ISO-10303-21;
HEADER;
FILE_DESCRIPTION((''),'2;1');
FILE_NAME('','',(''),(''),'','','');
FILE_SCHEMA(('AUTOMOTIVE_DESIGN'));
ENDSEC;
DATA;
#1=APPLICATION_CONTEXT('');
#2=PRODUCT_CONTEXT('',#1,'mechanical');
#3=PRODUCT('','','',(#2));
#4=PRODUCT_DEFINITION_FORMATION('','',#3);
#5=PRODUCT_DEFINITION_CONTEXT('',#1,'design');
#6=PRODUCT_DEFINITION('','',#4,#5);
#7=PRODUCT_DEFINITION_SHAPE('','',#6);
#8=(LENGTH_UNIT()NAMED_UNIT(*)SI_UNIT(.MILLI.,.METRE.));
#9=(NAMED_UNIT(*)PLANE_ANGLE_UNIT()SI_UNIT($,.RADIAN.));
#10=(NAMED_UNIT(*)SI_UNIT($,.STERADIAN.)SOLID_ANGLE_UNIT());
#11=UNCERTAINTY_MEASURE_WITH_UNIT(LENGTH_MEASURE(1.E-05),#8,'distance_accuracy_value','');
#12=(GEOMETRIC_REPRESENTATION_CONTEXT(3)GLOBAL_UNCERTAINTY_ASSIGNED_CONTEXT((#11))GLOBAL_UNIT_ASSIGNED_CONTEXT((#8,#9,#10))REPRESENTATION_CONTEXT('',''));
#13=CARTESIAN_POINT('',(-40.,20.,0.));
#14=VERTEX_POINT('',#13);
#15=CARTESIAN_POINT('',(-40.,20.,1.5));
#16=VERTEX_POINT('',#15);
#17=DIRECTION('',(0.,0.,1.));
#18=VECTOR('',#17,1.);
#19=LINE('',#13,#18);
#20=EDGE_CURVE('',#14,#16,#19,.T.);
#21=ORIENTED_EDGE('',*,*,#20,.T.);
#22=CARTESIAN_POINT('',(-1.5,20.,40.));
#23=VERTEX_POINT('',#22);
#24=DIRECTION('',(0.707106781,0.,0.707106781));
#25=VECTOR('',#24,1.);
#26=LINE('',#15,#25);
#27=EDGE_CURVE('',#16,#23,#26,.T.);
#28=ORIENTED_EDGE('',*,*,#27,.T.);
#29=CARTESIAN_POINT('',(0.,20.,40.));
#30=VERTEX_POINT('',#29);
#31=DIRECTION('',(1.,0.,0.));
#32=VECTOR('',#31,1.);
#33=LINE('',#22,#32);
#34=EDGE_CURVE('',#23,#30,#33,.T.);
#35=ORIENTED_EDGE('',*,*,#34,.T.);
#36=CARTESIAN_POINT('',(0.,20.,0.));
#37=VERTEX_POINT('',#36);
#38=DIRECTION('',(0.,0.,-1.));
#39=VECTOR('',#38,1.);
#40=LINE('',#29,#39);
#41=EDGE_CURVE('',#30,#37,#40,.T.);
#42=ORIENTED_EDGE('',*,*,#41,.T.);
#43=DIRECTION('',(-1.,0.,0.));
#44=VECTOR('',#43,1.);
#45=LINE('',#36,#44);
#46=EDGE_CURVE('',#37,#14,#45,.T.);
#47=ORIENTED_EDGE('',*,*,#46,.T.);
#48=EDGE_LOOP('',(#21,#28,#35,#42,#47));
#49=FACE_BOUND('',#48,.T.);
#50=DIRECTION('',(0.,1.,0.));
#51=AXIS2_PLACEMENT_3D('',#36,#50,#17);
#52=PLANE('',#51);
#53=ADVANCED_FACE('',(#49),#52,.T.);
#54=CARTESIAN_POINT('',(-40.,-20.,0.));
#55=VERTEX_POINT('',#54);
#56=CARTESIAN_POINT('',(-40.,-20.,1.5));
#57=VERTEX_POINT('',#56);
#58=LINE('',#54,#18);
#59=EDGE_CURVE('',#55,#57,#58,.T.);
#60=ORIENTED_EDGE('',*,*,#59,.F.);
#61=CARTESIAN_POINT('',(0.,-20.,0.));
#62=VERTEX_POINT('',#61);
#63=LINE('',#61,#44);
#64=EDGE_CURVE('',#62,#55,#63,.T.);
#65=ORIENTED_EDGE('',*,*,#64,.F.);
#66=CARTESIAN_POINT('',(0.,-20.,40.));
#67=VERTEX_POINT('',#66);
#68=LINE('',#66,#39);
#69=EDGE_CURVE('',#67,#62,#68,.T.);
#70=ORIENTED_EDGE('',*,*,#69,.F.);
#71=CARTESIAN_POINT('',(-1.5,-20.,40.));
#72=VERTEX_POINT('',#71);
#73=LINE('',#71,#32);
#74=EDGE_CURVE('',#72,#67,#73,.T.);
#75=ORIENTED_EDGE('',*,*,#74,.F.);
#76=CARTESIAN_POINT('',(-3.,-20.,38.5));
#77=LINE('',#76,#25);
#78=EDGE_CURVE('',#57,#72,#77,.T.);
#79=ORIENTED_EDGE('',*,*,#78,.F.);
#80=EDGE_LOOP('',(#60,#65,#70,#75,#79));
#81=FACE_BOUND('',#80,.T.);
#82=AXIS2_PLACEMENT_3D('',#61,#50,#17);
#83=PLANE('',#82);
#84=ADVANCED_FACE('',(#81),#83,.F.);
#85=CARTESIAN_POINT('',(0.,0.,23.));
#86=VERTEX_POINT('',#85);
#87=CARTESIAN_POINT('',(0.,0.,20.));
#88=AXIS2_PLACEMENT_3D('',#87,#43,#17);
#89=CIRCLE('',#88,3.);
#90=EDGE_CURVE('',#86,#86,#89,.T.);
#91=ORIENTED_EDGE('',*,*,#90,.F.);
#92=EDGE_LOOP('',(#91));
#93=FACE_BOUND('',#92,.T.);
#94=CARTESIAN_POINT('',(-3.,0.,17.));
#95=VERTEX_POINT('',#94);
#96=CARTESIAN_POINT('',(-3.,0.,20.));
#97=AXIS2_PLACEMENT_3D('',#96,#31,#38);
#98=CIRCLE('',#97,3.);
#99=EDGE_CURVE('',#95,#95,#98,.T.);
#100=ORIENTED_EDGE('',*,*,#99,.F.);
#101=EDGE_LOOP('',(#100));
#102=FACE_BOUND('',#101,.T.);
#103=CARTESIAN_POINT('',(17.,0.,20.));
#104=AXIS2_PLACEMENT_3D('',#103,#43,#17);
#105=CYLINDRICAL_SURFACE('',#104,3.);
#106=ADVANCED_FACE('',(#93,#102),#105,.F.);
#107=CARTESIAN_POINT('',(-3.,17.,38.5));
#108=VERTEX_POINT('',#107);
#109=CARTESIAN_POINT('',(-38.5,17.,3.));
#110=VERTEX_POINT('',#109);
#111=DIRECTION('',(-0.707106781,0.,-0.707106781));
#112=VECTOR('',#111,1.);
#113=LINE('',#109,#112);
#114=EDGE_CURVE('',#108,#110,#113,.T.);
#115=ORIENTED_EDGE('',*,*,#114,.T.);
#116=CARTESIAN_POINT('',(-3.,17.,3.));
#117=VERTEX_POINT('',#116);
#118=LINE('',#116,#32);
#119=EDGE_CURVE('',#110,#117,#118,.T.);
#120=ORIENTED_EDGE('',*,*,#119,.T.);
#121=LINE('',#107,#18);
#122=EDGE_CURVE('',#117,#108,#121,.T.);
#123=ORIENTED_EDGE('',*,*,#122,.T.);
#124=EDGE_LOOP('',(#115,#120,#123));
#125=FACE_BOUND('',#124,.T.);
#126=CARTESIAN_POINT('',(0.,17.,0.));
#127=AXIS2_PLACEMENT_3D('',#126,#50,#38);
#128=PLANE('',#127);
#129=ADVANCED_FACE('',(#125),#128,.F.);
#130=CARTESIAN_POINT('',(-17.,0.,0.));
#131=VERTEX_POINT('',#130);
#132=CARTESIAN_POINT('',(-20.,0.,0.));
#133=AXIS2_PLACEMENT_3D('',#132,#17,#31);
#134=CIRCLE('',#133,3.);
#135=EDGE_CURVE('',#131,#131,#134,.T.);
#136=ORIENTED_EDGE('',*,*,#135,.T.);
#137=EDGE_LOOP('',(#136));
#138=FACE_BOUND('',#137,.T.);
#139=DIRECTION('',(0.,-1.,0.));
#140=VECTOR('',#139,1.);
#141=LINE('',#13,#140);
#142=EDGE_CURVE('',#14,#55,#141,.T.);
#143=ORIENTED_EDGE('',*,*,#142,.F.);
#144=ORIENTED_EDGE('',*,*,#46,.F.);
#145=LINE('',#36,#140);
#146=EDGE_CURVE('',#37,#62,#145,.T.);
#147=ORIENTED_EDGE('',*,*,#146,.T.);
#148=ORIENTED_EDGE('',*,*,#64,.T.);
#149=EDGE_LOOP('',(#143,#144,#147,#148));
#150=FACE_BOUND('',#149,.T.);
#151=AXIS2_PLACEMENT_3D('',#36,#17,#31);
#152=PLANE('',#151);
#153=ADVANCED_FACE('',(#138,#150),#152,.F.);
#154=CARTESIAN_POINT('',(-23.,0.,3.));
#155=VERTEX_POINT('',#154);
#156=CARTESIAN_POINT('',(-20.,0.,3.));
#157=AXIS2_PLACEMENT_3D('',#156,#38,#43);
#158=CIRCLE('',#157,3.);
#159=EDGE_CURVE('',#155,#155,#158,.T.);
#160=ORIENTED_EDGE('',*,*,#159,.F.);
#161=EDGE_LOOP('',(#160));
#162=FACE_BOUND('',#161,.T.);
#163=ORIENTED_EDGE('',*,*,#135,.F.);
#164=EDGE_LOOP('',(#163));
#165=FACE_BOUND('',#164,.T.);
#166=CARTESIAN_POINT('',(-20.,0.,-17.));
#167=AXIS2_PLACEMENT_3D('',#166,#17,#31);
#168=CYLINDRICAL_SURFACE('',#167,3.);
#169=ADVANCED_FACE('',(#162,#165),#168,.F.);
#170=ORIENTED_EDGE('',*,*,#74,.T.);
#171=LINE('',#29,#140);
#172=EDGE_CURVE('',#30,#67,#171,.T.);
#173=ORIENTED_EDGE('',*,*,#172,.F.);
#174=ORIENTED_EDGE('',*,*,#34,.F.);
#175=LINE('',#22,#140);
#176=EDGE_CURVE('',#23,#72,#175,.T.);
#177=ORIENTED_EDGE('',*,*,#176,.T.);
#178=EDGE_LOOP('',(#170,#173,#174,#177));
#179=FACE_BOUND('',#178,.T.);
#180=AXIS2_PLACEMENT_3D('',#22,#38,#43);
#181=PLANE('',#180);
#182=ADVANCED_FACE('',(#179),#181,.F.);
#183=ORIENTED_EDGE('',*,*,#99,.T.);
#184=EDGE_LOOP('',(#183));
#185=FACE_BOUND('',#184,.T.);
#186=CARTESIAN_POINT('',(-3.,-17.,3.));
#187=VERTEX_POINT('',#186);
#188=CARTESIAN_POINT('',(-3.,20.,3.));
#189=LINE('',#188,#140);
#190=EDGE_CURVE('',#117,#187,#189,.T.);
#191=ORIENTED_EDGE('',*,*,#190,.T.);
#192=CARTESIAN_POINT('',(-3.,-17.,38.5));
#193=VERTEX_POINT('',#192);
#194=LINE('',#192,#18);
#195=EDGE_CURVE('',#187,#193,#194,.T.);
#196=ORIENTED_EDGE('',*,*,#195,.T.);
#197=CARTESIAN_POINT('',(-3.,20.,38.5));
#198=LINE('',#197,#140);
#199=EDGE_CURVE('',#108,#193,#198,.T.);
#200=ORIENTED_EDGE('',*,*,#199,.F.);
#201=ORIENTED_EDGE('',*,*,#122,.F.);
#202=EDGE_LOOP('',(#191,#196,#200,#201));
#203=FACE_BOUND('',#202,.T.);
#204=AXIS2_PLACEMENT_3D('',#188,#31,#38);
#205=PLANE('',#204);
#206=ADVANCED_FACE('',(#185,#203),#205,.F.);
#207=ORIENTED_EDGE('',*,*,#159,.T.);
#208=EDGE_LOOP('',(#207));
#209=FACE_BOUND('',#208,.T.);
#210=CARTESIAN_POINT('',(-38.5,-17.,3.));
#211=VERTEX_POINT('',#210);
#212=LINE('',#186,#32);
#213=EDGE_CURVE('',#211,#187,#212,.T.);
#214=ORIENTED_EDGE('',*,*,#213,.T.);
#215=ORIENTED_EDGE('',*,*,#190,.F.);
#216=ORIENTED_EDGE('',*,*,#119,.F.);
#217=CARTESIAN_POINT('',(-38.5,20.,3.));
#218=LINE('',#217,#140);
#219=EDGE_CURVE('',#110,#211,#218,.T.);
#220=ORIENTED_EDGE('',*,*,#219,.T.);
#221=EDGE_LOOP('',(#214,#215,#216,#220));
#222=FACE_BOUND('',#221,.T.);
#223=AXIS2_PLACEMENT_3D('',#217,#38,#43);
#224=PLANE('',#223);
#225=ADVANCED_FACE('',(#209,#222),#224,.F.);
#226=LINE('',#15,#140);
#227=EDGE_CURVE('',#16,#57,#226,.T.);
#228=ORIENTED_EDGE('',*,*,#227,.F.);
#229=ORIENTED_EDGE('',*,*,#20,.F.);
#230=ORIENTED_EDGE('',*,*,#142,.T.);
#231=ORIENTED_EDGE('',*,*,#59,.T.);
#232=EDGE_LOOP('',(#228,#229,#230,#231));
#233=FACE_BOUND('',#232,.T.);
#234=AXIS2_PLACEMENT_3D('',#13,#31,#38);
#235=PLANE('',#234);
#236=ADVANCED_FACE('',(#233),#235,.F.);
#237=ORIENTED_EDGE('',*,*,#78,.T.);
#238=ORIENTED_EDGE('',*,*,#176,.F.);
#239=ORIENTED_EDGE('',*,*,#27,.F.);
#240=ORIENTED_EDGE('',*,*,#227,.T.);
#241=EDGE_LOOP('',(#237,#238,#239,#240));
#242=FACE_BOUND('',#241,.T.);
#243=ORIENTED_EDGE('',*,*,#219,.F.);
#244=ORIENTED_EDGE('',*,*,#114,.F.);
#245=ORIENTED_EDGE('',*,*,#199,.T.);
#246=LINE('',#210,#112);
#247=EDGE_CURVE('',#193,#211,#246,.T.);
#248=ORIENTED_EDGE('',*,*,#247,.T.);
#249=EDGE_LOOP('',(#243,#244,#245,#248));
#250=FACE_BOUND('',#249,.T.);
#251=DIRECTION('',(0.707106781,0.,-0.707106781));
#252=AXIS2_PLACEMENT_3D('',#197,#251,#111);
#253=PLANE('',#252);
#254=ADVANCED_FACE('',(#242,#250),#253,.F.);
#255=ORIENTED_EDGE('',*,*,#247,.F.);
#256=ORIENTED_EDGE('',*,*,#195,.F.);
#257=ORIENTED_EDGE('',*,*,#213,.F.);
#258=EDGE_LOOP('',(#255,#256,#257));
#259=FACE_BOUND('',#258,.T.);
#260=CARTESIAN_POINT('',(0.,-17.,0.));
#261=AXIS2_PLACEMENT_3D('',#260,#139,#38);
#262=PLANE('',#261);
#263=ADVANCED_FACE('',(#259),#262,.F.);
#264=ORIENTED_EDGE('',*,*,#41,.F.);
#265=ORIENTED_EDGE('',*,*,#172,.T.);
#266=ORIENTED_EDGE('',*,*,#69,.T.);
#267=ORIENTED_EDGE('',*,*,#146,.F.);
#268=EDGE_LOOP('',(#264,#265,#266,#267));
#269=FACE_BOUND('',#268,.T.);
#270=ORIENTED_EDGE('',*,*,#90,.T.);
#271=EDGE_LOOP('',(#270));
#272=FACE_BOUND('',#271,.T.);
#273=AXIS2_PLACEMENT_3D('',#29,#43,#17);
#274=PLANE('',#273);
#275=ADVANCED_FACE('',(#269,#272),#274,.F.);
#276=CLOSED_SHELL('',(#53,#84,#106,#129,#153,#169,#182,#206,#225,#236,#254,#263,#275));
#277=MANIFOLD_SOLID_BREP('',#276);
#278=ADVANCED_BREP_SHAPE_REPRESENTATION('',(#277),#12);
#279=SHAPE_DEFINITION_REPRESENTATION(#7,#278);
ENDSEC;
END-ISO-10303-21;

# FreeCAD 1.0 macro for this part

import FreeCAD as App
import Part
import Sketcher

V = App.Vector
Q = App.Units.Quantity

doc = App.newDocument("Part")
body = doc.addObject("PartDesign::Body", "Body")

sketch1 = doc.addObject("Sketcher::SketchObject", "Sketch")
body.addObject(sketch1)
sketch1.AttachmentSupport = (doc.XZ_Plane, [""])
sketch1.MapMode = "FlatFace"
sketch1.addGeometry(Part.LineSegment(V(0, 0, 0), V(-40, 0, 0)), False)
sketch1.addGeometry(Part.LineSegment(V(-40, 0, 0), V(-40, 1.5, 0)), False)
sketch1.addGeometry(Part.LineSegment(V(-40, 1.5, 0), V(-38.5, 3, 0)), False)
sketch1.addGeometry(Part.LineSegment(V(-38.5, 3, 0), V(-3, 3, 0)), False)
sketch1.addGeometry(Part.LineSegment(V(-3, 3, 0), V(-3, 38.5, 0)), False)
sketch1.addGeometry(Part.LineSegment(V(-3, 38.5, 0), V(-1.5, 40, 0)), False)
sketch1.addGeometry(Part.LineSegment(V(-1.5, 40, 0), V(0, 40, 0)), False)
sketch1.addGeometry(Part.LineSegment(V(0, 40, 0), V(0, 0, 0)), False)
sketch1.addConstraint(Sketcher.Constraint("Coincident", 0, 2, 1, 1))
sketch1.addConstraint(Sketcher.Constraint("Coincident", 1, 2, 2, 1))
sketch1.addConstraint(Sketcher.Constraint("Coincident", 2, 2, 3, 1))
sketch1.addConstraint(Sketcher.Constraint("Coincident", 3, 2, 4, 1))
sketch1.addConstraint(Sketcher.Constraint("Coincident", 4, 2, 5, 1))
sketch1.addConstraint(Sketcher.Constraint("Coincident", 5, 2, 6, 1))
sketch1.addConstraint(Sketcher.Constraint("Coincident", 6, 2, 7, 1))
sketch1.addConstraint(Sketcher.Constraint("Coincident", 7, 2, 0, 1))
sketch1.addConstraint(Sketcher.Constraint("Horizontal", 0))
sketch1.addConstraint(Sketcher.Constraint("Vertical", 1))
sketch1.addConstraint(Sketcher.Constraint("Horizontal", 3))
sketch1.addConstraint(Sketcher.Constraint("Vertical", 4))
sketch1.addConstraint(Sketcher.Constraint("Horizontal", 6))
sketch1.addConstraint(Sketcher.Constraint("Vertical", 7))
sketch1.addConstraint(Sketcher.Constraint("Coincident", 7, 2, -1, 1))
sketch1.addConstraint(Sketcher.Constraint("Parallel", 2, 5))
sketch1.addConstraint(Sketcher.Constraint("Equal", 6, 1))
sketch1.addConstraint(Sketcher.Constraint("Equal", 3, 4))
sketch1.addConstraint(Sketcher.Constraint("Equal", 0, 7))
sketch1.addConstraint(Sketcher.Constraint("Equal", 2, 5))
sketch1.addConstraint(Sketcher.Constraint("DistanceX", 0, 2, 0, 1, Q("40 mm")))
sketch1.addConstraint(Sketcher.Constraint("DistanceX", 3, 1, 3, 2, Q("35.5 mm")))
sketch1.addConstraint(Sketcher.Constraint("DistanceX", 6, 1, 6, 2, Q("1.5 mm")))
pad1 = doc.addObject("PartDesign::Pad", "Pad")
body.addObject(pad1)
pad1.Profile = sketch1
pad1.Length = 40
pad1.Midplane = True

sketch2 = doc.addObject("Sketcher::SketchObject", "Sketch001")
body.addObject(sketch2)
sketch2.AttachmentSupport = (doc.XY_Plane, [""])
sketch2.MapMode = "FlatFace"
sketch2.AttachmentOffset = App.Placement(V(0, 0, 3), App.Rotation())
sketch2.addGeometry(Part.Circle(V(-20, 0, 0), V(0, 0, 1), 3), False)
sketch2.addConstraint(Sketcher.Constraint("PointOnObject", 0, 3, -1))
sketch2.addConstraint(Sketcher.Constraint("Diameter", 0, Q("6 mm")))
sketch2.addConstraint(Sketcher.Constraint("DistanceX", 0, 3, -1, 1, Q("20 mm")))
pocket1 = doc.addObject("PartDesign::Pocket", "Pocket")
body.addObject(pocket1)
pocket1.Profile = sketch2
pocket1.Length = 40
pocket1.Midplane = True

sketch3 = doc.addObject("Sketcher::SketchObject", "Sketch002")
body.addObject(sketch3)
sketch3.AttachmentSupport = (doc.YZ_Plane, [""])
sketch3.MapMode = "FlatFace"
sketch3.AttachmentOffset = App.Placement(V(0, 0, -3), App.Rotation())
sketch3.addGeometry(Part.Circle(V(0, 20, 0), V(0, 0, 1), 3), False)
sketch3.addConstraint(Sketcher.Constraint("PointOnObject", 0, 3, -2))
sketch3.addConstraint(Sketcher.Constraint("Diameter", 0, Q("6 mm")))
sketch3.addConstraint(Sketcher.Constraint("DistanceY", -1, 1, 0, 3, Q("20 mm")))
pocket2 = doc.addObject("PartDesign::Pocket", "Pocket001")
body.addObject(pocket2)
pocket2.Profile = sketch3
pocket2.Length = 40
pocket2.Midplane = True

sketch4 = doc.addObject("Sketcher::SketchObject", "Sketch003")
body.addObject(sketch4)
sketch4.AttachmentSupport = (doc.XZ_Plane, [""])
sketch4.MapMode = "FlatFace"
sketch4.AttachmentOffset = App.Placement(V(0, 0, 20), App.Rotation())
sketch4.addGeometry(Part.LineSegment(V(-3, 38.5, 0), V(-38.5, 3, 0)), False)
sketch4.addGeometry(Part.LineSegment(V(-38.5, 3, 0), V(-3, 3, 0)), False)
sketch4.addGeometry(Part.LineSegment(V(-3, 3, 0), V(-3, 38.5, 0)), False)
sketch4.addConstraint(Sketcher.Constraint("Coincident", 0, 2, 1, 1))
sketch4.addConstraint(Sketcher.Constraint("Coincident", 1, 2, 2, 1))
sketch4.addConstraint(Sketcher.Constraint("Coincident", 2, 2, 0, 1))
sketch4.addConstraint(Sketcher.Constraint("Horizontal", 1))
sketch4.addConstraint(Sketcher.Constraint("Vertical", 2))
sketch4.addConstraint(Sketcher.Constraint("Equal", 1, 2))
sketch4.addConstraint(Sketcher.Constraint("DistanceX", 1, 1, 1, 2, Q("35.5 mm")))
sketch4.addConstraint(Sketcher.Constraint("DistanceY", -1, 1, 0, 2, Q("3 mm")))
sketch4.addConstraint(Sketcher.Constraint("DistanceX", 1, 2, -1, 1, Q("3 mm")))
pad2 = doc.addObject("PartDesign::Pad", "Pad001")
body.addObject(pad2)
pad2.Profile = sketch4
pad2.Length = 3
pad2.Reversed = True
doc.recompute()

mirrored = doc.addObject("PartDesign::Mirrored", "Mirrored")
body.addObject(mirrored)
mirrored.Originals = [pad2]
mirrored.MirrorPlane = (doc.XZ_Plane, [""])
body.Tip = mirrored

doc.recompute()
